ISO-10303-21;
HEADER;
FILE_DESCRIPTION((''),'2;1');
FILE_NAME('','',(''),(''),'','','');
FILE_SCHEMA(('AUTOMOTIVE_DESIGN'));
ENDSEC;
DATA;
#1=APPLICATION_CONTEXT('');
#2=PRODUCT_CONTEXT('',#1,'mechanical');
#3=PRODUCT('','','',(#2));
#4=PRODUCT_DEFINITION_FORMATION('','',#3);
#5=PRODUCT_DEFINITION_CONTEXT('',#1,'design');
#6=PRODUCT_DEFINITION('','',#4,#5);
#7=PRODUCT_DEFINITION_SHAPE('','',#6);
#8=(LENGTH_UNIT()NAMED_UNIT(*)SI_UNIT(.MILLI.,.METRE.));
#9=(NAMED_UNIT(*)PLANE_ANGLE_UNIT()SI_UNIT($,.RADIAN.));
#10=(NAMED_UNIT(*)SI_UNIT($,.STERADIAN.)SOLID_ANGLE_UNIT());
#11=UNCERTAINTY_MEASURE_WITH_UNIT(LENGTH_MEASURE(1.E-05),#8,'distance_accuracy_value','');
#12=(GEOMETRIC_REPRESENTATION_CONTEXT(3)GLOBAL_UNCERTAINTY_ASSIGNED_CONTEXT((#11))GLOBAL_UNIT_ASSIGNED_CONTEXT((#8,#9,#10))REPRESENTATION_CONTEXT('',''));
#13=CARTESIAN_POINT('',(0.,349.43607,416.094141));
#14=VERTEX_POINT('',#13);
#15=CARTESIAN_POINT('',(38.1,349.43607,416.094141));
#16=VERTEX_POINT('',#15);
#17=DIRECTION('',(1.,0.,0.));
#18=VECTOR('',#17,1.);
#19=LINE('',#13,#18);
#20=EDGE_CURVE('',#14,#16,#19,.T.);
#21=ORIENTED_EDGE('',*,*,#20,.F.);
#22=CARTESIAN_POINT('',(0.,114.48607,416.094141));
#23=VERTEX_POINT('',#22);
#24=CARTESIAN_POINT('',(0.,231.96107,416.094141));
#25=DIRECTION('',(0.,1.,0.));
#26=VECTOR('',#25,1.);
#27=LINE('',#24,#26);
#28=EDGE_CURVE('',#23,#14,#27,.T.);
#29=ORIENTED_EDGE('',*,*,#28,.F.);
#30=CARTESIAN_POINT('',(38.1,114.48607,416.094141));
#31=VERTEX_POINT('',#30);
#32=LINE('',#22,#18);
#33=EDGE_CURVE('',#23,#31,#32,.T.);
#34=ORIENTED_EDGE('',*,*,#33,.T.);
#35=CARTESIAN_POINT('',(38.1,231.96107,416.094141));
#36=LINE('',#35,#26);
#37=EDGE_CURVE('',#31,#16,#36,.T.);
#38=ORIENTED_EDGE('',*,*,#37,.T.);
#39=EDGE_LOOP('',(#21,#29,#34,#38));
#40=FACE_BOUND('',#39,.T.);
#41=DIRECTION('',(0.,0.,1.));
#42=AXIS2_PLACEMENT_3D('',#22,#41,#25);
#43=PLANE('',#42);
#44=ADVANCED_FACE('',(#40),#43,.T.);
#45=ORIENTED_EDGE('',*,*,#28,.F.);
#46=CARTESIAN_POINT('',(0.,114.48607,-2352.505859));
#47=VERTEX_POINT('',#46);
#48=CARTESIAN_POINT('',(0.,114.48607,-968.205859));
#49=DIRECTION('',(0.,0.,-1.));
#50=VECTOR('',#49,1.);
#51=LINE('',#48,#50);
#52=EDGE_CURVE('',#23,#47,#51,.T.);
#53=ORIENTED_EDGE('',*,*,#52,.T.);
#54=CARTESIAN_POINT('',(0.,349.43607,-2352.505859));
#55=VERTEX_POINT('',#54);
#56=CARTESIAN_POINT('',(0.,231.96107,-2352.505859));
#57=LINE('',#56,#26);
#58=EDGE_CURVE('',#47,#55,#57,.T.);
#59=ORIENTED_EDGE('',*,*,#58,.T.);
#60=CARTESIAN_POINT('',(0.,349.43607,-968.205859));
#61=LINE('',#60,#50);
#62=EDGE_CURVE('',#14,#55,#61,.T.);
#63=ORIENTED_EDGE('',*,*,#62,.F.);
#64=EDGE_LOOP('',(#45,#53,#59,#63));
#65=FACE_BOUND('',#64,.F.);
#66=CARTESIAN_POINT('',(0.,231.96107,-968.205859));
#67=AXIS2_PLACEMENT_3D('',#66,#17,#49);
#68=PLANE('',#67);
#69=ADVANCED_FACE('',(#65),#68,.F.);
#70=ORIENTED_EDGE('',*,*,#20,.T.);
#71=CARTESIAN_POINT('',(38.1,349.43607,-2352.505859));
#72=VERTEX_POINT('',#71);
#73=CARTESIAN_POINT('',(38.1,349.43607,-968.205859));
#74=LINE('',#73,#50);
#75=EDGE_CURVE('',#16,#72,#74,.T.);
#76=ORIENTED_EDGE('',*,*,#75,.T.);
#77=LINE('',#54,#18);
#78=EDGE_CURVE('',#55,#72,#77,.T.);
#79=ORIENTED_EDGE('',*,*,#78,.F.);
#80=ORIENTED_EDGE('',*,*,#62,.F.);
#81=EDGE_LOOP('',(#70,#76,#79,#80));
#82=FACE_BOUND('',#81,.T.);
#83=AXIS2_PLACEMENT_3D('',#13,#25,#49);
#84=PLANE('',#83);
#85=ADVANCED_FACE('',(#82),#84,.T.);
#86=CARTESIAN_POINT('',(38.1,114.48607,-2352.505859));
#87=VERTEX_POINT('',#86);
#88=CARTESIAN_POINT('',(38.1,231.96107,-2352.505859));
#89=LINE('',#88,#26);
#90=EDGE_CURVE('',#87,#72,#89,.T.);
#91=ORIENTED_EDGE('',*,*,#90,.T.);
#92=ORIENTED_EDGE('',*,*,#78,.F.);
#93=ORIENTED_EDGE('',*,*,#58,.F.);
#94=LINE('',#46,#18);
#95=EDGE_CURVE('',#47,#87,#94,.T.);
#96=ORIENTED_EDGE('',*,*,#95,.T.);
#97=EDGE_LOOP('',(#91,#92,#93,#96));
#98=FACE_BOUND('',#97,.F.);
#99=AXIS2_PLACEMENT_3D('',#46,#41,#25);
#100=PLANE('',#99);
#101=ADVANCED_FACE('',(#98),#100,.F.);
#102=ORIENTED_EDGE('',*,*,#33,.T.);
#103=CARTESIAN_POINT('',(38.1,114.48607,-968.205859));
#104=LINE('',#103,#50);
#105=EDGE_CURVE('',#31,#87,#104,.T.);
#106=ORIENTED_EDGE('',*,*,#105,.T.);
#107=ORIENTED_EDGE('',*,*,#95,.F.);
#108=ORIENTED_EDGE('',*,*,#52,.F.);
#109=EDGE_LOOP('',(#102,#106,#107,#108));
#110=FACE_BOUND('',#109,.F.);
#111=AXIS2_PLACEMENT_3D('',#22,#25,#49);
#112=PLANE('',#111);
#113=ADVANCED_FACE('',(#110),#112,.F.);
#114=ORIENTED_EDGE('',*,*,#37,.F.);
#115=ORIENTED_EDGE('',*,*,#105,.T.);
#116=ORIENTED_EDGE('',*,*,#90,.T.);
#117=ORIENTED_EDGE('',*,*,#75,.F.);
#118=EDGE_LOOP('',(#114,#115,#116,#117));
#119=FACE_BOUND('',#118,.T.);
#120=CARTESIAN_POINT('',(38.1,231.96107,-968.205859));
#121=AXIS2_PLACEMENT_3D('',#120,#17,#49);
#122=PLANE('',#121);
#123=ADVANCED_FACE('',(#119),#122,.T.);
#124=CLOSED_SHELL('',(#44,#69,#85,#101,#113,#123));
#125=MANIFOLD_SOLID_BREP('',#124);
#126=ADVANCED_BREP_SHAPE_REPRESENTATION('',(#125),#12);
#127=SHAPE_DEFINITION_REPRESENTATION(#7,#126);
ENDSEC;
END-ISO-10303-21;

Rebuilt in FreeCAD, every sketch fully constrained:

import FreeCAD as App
import Part
import Sketcher
from FreeCAD import Vector
Q = App.Units.Quantity


def add_polygon(sketch, points):
    """Adds a closed chain of lines whose ends are joined by coincident constraints."""
    first, n = sketch.GeometryCount, len(points)
    for a, b in zip(points, points[1:] + points[:1]):
        sketch.addGeometry(Part.LineSegment(App.Vector(*a, 0), App.Vector(*b, 0)), False)
    for i in range(n):
        sketch.addConstraint(Sketcher.Constraint("Coincident", first + i, 2, first + (i + 1) % n, 1))

doc = App.newDocument("Part")
body = doc.addObject("PartDesign::Body", "Body")

sketch1 = doc.addObject("Sketcher::SketchObject", "Sketch")
body.addObject(sketch1)
sketch1.AttachmentSupport = (doc.YZ_Plane, [""])
sketch1.MapMode = "FlatFace"
add_polygon(sketch1, [(349, 416), (114, 416), (114, -2353), (349, -2353)])
sketch1.addConstraint(Sketcher.Constraint("Horizontal", 0))
sketch1.addConstraint(Sketcher.Constraint("Vertical", 1))
sketch1.addConstraint(Sketcher.Constraint("Horizontal", 2))
sketch1.addConstraint(Sketcher.Constraint("Vertical", 3))
sketch1.addConstraint(Sketcher.Constraint("DistanceY", 1, 2, 1, 1, Q("109 in")))
sketch1.addConstraint(Sketcher.Constraint("DistanceX", 0, 2, 0, 1, Q("9.25 in")))
sketch1.addConstraint(Sketcher.Constraint("DistanceX", -1, 1, 0, 2, 114.48607))
sketch1.addConstraint(Sketcher.Constraint("DistanceY", -1, 1, 0, 2, 416.094141))
pad1 = doc.addObject("PartDesign::Pad", "Pad")
body.addObject(pad1)
pad1.Profile = sketch1
pad1.Length = Q("1.5 in")

doc.recompute()
